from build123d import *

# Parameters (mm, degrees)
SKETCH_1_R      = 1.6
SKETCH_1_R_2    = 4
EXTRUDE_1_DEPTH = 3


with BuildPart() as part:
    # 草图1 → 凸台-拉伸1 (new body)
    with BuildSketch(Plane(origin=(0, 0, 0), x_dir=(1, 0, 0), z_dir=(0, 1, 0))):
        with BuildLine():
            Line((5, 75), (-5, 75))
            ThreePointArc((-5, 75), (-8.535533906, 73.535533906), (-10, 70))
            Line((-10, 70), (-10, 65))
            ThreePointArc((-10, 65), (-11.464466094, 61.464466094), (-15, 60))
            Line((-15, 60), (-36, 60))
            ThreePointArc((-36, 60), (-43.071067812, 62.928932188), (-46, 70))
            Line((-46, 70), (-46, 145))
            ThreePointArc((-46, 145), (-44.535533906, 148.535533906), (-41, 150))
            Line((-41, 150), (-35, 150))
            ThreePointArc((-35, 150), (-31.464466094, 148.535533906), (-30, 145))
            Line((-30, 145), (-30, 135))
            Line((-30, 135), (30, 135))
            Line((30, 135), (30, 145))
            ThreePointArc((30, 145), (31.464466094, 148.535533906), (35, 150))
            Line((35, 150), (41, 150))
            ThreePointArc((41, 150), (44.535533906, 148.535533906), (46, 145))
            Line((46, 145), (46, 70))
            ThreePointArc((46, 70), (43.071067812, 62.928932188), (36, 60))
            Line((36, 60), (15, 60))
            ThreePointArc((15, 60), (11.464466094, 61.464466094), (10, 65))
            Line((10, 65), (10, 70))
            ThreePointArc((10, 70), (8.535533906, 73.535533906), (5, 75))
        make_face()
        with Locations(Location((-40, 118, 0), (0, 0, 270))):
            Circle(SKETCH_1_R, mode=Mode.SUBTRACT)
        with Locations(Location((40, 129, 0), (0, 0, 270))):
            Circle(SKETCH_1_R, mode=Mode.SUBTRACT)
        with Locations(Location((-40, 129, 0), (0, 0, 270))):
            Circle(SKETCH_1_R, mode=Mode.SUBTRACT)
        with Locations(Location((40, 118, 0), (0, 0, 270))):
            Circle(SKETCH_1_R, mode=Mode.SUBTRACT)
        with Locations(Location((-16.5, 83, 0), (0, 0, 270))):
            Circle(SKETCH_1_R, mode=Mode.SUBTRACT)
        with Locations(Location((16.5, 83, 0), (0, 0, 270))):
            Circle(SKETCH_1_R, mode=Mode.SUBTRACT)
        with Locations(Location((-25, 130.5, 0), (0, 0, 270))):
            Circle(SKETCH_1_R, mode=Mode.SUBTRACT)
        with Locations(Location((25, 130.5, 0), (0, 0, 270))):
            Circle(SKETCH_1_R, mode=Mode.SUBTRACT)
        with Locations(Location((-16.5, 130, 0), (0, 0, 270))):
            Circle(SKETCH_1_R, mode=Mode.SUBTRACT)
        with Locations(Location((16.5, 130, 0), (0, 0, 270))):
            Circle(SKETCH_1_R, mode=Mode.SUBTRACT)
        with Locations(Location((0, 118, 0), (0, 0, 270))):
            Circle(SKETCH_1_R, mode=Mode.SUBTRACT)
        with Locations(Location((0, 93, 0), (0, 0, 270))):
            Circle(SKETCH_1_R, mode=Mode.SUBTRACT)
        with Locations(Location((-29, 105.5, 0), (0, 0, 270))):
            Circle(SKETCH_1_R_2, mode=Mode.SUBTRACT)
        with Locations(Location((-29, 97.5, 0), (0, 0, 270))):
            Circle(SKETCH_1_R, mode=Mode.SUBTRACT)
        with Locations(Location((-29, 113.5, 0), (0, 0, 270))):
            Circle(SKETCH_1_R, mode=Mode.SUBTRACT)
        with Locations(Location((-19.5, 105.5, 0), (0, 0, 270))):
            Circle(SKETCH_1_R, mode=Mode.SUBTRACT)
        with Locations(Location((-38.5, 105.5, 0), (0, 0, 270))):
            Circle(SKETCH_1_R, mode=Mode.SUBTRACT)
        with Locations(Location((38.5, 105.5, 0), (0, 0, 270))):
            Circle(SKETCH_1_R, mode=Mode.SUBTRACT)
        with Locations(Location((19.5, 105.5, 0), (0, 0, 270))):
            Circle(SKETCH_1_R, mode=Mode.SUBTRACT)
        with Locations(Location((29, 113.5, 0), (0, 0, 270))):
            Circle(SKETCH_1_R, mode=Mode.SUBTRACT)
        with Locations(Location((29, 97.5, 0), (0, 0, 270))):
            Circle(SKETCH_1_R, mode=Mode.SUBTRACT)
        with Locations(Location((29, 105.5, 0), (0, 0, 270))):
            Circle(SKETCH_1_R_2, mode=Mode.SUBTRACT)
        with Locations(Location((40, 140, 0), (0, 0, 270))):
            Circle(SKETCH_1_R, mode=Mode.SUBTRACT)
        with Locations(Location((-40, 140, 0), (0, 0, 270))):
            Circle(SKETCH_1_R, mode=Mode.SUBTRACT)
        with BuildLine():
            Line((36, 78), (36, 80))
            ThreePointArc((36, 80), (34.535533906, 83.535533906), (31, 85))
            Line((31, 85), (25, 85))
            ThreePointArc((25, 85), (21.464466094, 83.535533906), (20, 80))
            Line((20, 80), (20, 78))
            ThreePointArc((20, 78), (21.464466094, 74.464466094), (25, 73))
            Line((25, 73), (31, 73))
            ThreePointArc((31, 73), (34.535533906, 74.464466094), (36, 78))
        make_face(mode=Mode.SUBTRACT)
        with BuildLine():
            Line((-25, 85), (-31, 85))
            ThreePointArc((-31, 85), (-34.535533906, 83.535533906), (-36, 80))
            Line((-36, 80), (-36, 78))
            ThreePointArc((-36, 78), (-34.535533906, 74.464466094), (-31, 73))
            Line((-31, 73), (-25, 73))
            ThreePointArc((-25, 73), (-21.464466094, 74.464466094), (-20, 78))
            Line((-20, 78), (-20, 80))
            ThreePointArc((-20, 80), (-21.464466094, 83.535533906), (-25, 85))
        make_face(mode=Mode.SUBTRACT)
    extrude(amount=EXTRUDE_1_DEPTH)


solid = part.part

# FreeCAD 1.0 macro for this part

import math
import FreeCAD as App
import Part
import Sketcher
Q = App.Units.Quantity

doc = App.newDocument("Part")
params = doc.addObject("Spreadsheet::Sheet", "Params")
for row, (alias, value) in enumerate([
    ("sketch1_diameter", "8 mm"),
    ("sketch1_radius", "5 mm"),
    ("sketch1_radius2", "10 mm"),
    ("sketch1_diameter2", "3.2 mm"),
    ("sketch1_width", "10 mm"),
    ("pad1_length", "3 mm"),
], start=1):
    params.set(f"A{row}", alias)
    params.set(f"B{row}", "=" + value)
    params.setAlias(f"B{row}", alias)

body = doc.addObject("PartDesign::Body", "Body")

# Sketch on XZ plane
sketch1 = doc.addObject("Sketcher::SketchObject", "Sketch")
body.addObject(sketch1)
sketch1.AttachmentSupport = (doc.XZ_Plane, [""])
sketch1.MapMode = "FlatFace"
sketch1.addGeometry([
    Part.LineSegment(App.Vector(-5, -75, 0), App.Vector(5, -75, 0)),  # 0
    Part.ArcOfCircle(Part.Circle(App.Vector(5, -70, 0), App.Vector(0, 0, 1), 5), math.radians(-90), math.radians(0)),  # 1
    Part.LineSegment(App.Vector(10, -70, 0), App.Vector(10, -65, 0)),  # 2
    Part.ArcOfCircle(Part.Circle(App.Vector(15, -65, 0), App.Vector(0, 0, 1), 5), math.radians(90), math.radians(180)),  # 3
    Part.LineSegment(App.Vector(15, -60, 0), App.Vector(36, -60, 0)),  # 4
    Part.ArcOfCircle(Part.Circle(App.Vector(36, -70, 0), App.Vector(0, 0, 1), 10), math.radians(0), math.radians(90)),  # 5
    Part.LineSegment(App.Vector(46, -70, 0), App.Vector(46, -145, 0)),  # 6
    Part.ArcOfCircle(Part.Circle(App.Vector(41, -145, 0), App.Vector(0, 0, 1), 5), math.radians(-90), math.radians(0)),  # 7
    Part.LineSegment(App.Vector(41, -150, 0), App.Vector(35, -150, 0)),  # 8
    Part.ArcOfCircle(Part.Circle(App.Vector(35, -145, 0), App.Vector(0, 0, 1), 5), math.radians(180), math.radians(270)),  # 9
    Part.LineSegment(App.Vector(30, -145, 0), App.Vector(30, -135, 0)),  # 10
    Part.LineSegment(App.Vector(30, -135, 0), App.Vector(-30, -135, 0)),  # 11
    Part.LineSegment(App.Vector(-30, -135, 0), App.Vector(-30, -145, 0)),  # 12
    Part.ArcOfCircle(Part.Circle(App.Vector(-35, -145, 0), App.Vector(0, 0, 1), 5), math.radians(-90), math.radians(0)),  # 13
    Part.LineSegment(App.Vector(-35, -150, 0), App.Vector(-41, -150, 0)),  # 14
    Part.ArcOfCircle(Part.Circle(App.Vector(-41, -145, 0), App.Vector(0, 0, 1), 5), math.radians(180), math.radians(270)),  # 15
    Part.LineSegment(App.Vector(-46, -145, 0), App.Vector(-46, -70, 0)),  # 16
    Part.ArcOfCircle(Part.Circle(App.Vector(-36, -70, 0), App.Vector(0, 0, 1), 10), math.radians(90), math.radians(180)),  # 17
    Part.LineSegment(App.Vector(-36, -60, 0), App.Vector(-15, -60, 0)),  # 18
    Part.ArcOfCircle(Part.Circle(App.Vector(-15, -65, 0), App.Vector(0, 0, 1), 5), math.radians(0), math.radians(90)),  # 19
    Part.LineSegment(App.Vector(-10, -65, 0), App.Vector(-10, -70, 0)),  # 20
    Part.ArcOfCircle(Part.Circle(App.Vector(-5, -70, 0), App.Vector(0, 0, 1), 5), math.radians(180), math.radians(270)),  # 21
    Part.ArcOfCircle(Part.Circle(App.Vector(31, -78, 0), App.Vector(0, 0, 1), 5), math.radians(0), math.radians(90)),  # 22
    Part.LineSegment(App.Vector(31, -73, 0), App.Vector(25, -73, 0)),  # 23
    Part.ArcOfCircle(Part.Circle(App.Vector(25, -78, 0), App.Vector(0, 0, 1), 5), math.radians(90), math.radians(180)),  # 24
    Part.LineSegment(App.Vector(20, -78, 0), App.Vector(20, -80, 0)),  # 25
    Part.ArcOfCircle(Part.Circle(App.Vector(25, -80, 0), App.Vector(0, 0, 1), 5), math.radians(180), math.radians(270)),  # 26
    Part.LineSegment(App.Vector(25, -85, 0), App.Vector(31, -85, 0)),  # 27
    Part.ArcOfCircle(Part.Circle(App.Vector(31, -80, 0), App.Vector(0, 0, 1), 5), math.radians(-90), math.radians(0)),  # 28
    Part.LineSegment(App.Vector(36, -80, 0), App.Vector(36, -78, 0)),  # 29
    Part.Circle(App.Vector(16.5, -83, 0), App.Vector(0, 0, 1), 1.6),  # 30
    Part.Circle(App.Vector(29, -97.5, 0), App.Vector(0, 0, 1), 1.6),  # 31
    Part.Circle(App.Vector(38.5, -105.5, 0), App.Vector(0, 0, 1), 1.6),  # 32
    Part.Circle(App.Vector(29, -105.5, 0), App.Vector(0, 0, 1), 4),  # 33
    Part.Circle(App.Vector(19.5, -105.5, 0), App.Vector(0, 0, 1), 1.6),  # 34
    Part.Circle(App.Vector(-16.5, -83, 0), App.Vector(0, 0, 1), 1.6),  # 35
    Part.ArcOfCircle(Part.Circle(App.Vector(-25, -80, 0), App.Vector(0, 0, 1), 5), math.radians(-90), math.radians(0)),  # 36
    Part.LineSegment(App.Vector(-20, -80, 0), App.Vector(-20, -78, 0)),  # 37
    Part.ArcOfCircle(Part.Circle(App.Vector(-25, -78, 0), App.Vector(0, 0, 1), 5), math.radians(0), math.radians(90)),  # 38
    Part.LineSegment(App.Vector(-25, -73, 0), App.Vector(-31, -73, 0)),  # 39
    Part.ArcOfCircle(Part.Circle(App.Vector(-31, -78, 0), App.Vector(0, 0, 1), 5), math.radians(90), math.radians(180)),  # 40
    Part.LineSegment(App.Vector(-36, -78, 0), App.Vector(-36, -80, 0)),  # 41
    Part.ArcOfCircle(Part.Circle(App.Vector(-31, -80, 0), App.Vector(0, 0, 1), 5), math.radians(180), math.radians(270)),  # 42
    Part.LineSegment(App.Vector(-31, -85, 0), App.Vector(-25, -85, 0)),  # 43
    Part.Circle(App.Vector(0, -93, 0), App.Vector(0, 0, 1), 1.6),  # 44
    Part.Circle(App.Vector(-19.5, -105.5, 0), App.Vector(0, 0, 1), 1.6),  # 45
    Part.Circle(App.Vector(-29, -97.5, 0), App.Vector(0, 0, 1), 1.6),  # 46
    Part.Circle(App.Vector(-29, -105.5, 0), App.Vector(0, 0, 1), 4),  # 47
    Part.Circle(App.Vector(-38.5, -105.5, 0), App.Vector(0, 0, 1), 1.6),  # 48
    Part.Circle(App.Vector(29, -113.5, 0), App.Vector(0, 0, 1), 1.6),  # 49
    Part.Circle(App.Vector(40, -118, 0), App.Vector(0, 0, 1), 1.6),  # 50
    Part.Circle(App.Vector(40, -129, 0), App.Vector(0, 0, 1), 1.6),  # 51
    Part.Circle(App.Vector(25, -130.5, 0), App.Vector(0, 0, 1), 1.6),  # 52
    Part.Circle(App.Vector(40, -140, 0), App.Vector(0, 0, 1), 1.6),  # 53
    Part.Circle(App.Vector(16.5, -130, 0), App.Vector(0, 0, 1), 1.6),  # 54
    Part.Circle(App.Vector(0, -118, 0), App.Vector(0, 0, 1), 1.6),  # 55
    Part.Circle(App.Vector(-29, -113.5, 0), App.Vector(0, 0, 1), 1.6),  # 56
    Part.Circle(App.Vector(-40, -118, 0), App.Vector(0, 0, 1), 1.6),  # 57
    Part.Circle(App.Vector(-16.5, -130, 0), App.Vector(0, 0, 1), 1.6),  # 58
    Part.Circle(App.Vector(-25, -130.5, 0), App.Vector(0, 0, 1), 1.6),  # 59
    Part.Circle(App.Vector(-40, -129, 0), App.Vector(0, 0, 1), 1.6),  # 60
    Part.Circle(App.Vector(-40, -140, 0), App.Vector(0, 0, 1), 1.6),  # 61
], False)
sketch1.addConstraint([
    Sketcher.Constraint("Tangent", 0, 2, 1, 1),
    Sketcher.Constraint("Tangent", 1, 2, 2, 1),
    Sketcher.Constraint("Tangent", 2, 2, 3, 2),
    Sketcher.Constraint("Tangent", 3, 1, 4, 1),
    Sketcher.Constraint("Tangent", 4, 2, 5, 2),
    Sketcher.Constraint("Tangent", 5, 1, 6, 1),
    Sketcher.Constraint("Tangent", 6, 2, 7, 2),
    Sketcher.Constraint("Tangent", 7, 1, 8, 1),
    Sketcher.Constraint("Tangent", 8, 2, 9, 2),
    Sketcher.Constraint("Tangent", 9, 1, 10, 1),
    Sketcher.Constraint("Coincident", 10, 2, 11, 1),
    Sketcher.Constraint("Coincident", 11, 2, 12, 1),
    Sketcher.Constraint("Tangent", 12, 2, 13, 2),
    Sketcher.Constraint("Tangent", 13, 1, 14, 1),
    Sketcher.Constraint("Tangent", 14, 2, 15, 2),
    Sketcher.Constraint("Tangent", 15, 1, 16, 1),
    Sketcher.Constraint("Tangent", 16, 2, 17, 2),
    Sketcher.Constraint("Tangent", 17, 1, 18, 1),
    Sketcher.Constraint("Tangent", 18, 2, 19, 2),
    Sketcher.Constraint("Tangent", 19, 1, 20, 1),
    Sketcher.Constraint("Tangent", 20, 2, 21, 1),
    Sketcher.Constraint("Tangent", 21, 2, 0, 1),
    Sketcher.Constraint("Tangent", 22, 2, 23, 1),
    Sketcher.Constraint("Tangent", 23, 2, 24, 1),
    Sketcher.Constraint("Tangent", 24, 2, 25, 1),
    Sketcher.Constraint("Tangent", 25, 2, 26, 1),
    Sketcher.Constraint("Tangent", 26, 2, 27, 1),
    Sketcher.Constraint("Tangent", 27, 2, 28, 1),
    Sketcher.Constraint("Tangent", 28, 2, 29, 1),
    Sketcher.Constraint("Tangent", 29, 2, 22, 1),
    Sketcher.Constraint("Tangent", 36, 2, 37, 1),
    Sketcher.Constraint("Tangent", 37, 2, 38, 1),
    Sketcher.Constraint("Tangent", 38, 2, 39, 1),
    Sketcher.Constraint("Tangent", 39, 2, 40, 1),
    Sketcher.Constraint("Tangent", 40, 2, 41, 1),
    Sketcher.Constraint("Tangent", 41, 2, 42, 1),
    Sketcher.Constraint("Tangent", 42, 2, 43, 1),
    Sketcher.Constraint("Tangent", 43, 2, 36, 1),
    Sketcher.Constraint("Horizontal", 0),
    Sketcher.Constraint("Vertical", 2),
    Sketcher.Constraint("Horizontal", 4),
    Sketcher.Constraint("Vertical", 6),
    Sketcher.Constraint("Horizontal", 8),
    Sketcher.Constraint("Vertical", 10),
    Sketcher.Constraint("Horizontal", 11),
    Sketcher.Constraint("Vertical", 12),
    Sketcher.Constraint("Horizontal", 14),
    Sketcher.Constraint("Vertical", 16),
    Sketcher.Constraint("Horizontal", 18),
    Sketcher.Constraint("Vertical", 20),
    Sketcher.Constraint("Horizontal", 23),
    Sketcher.Constraint("Vertical", 25),
    Sketcher.Constraint("Horizontal", 27),
    Sketcher.Constraint("Vertical", 29),
    Sketcher.Constraint("Vertical", 37),
    Sketcher.Constraint("Horizontal", 39),
    Sketcher.Constraint("Vertical", 41),
    Sketcher.Constraint("Horizontal", 43),
    Sketcher.Constraint("Equal", 1, 3),
    Sketcher.Constraint("Equal", 3, 7),
    Sketcher.Constraint("Equal", 7, 9),
    Sketcher.Constraint("Equal", 9, 13),
    Sketcher.Constraint("Equal", 13, 15),
    Sketcher.Constraint("Equal", 5, 17),
    Sketcher.Constraint("Equal", 15, 19),
    Sketcher.Constraint("Equal", 19, 21),
    Sketcher.Constraint("Equal", 21, 22),
    Sketcher.Constraint("Equal", 22, 24),
    Sketcher.Constraint("Equal", 24, 26),
    Sketcher.Constraint("Equal", 26, 28),
    Sketcher.Constraint("Equal", 30, 31),
    Sketcher.Constraint("Equal", 31, 32),
    Sketcher.Constraint("Equal", 32, 34),
    Sketcher.Constraint("Equal", 34, 35),
    Sketcher.Constraint("Equal", 28, 36),
    Sketcher.Constraint("Equal", 36, 38),
    Sketcher.Constraint("Equal", 38, 40),
    Sketcher.Constraint("Equal", 40, 42),
    Sketcher.Constraint("Equal", 35, 44),
    Sketcher.Constraint("Equal", 44, 45),
    Sketcher.Constraint("Equal", 45, 46),
    Sketcher.Constraint("Equal", 33, 47),
    Sketcher.Constraint("Equal", 46, 48),
    Sketcher.Constraint("Equal", 48, 49),
    Sketcher.Constraint("Equal", 49, 50),
    Sketcher.Constraint("Equal", 50, 51),
    Sketcher.Constraint("Equal", 51, 52),
    Sketcher.Constraint("Equal", 52, 53),
    Sketcher.Constraint("Equal", 53, 54),
    Sketcher.Constraint("Equal", 54, 55),
    Sketcher.Constraint("Equal", 55, 56),
    Sketcher.Constraint("Equal", 56, 57),
    Sketcher.Constraint("Equal", 57, 58),
    Sketcher.Constraint("Equal", 58, 59),
    Sketcher.Constraint("Equal", 59, 60),
    Sketcher.Constraint("Equal", 60, 61),
    Sketcher.Constraint("Symmetric", 9, 3, 13, 3, -2),
    Sketcher.Constraint("Symmetric", 5, 3, 17, 3, -2),
    Sketcher.Constraint("Symmetric", 30, 3, 35, 3, -2),
    Sketcher.Constraint("Symmetric", 26, 3, 36, 3, -2),
    Sketcher.Constraint("Symmetric", 22, 3, 40, 3, -2),
    Sketcher.Constraint("Symmetric", 34, 3, 45, 3, -2),
    Sketcher.Constraint("Symmetric", 31, 3, 46, 3, -2),
    Sketcher.Constraint("Symmetric", 33, 3, 47, 3, -2),
    Sketcher.Constraint("Symmetric", 32, 3, 48, 3, -2),
    Sketcher.Constraint("Symmetric", 49, 3, 56, 3, -2),
    Sketcher.Constraint("Symmetric", 50, 3, 57, 3, -2),
    Sketcher.Constraint("Symmetric", 54, 3, 58, 3, -2),
    Sketcher.Constraint("Symmetric", 52, 3, 59, 3, -2),
    Sketcher.Constraint("Symmetric", 51, 3, 60, 3, -2),
    Sketcher.Constraint("Symmetric", 53, 3, 61, 3, -2),
    Sketcher.Constraint("PointOnObject", 44, 3, -2),
    Sketcher.Constraint("PointOnObject", 55, 3, -2),
    Sketcher.Constraint("Horizontal", 1, 3, 5, 3),
    Sketcher.Constraint("Horizontal", 32, 3, 33, 3),
    Sketcher.Constraint("Horizontal", 33, 3, 34, 3),
    Sketcher.Constraint("Horizontal", 50, 3, 55, 3),
    Sketcher.Constraint("Vertical", 31, 3, 33, 3),
    Sketcher.Constraint("Vertical", 33, 3, 49, 3),
    Sketcher.Constraint("Vertical", 50, 3, 51, 3),
    Sketcher.Constraint("Vertical", 26, 3, 52, 3),
    Sketcher.Constraint("Vertical", 51, 3, 53, 3),
    Sketcher.Constraint("Vertical", 30, 3, 54, 3),
    Sketcher.Constraint("Vertical", 4, 2, 28, 2),
    Sketcher.Constraint("Equal", 4, 18),
    Sketcher.Constraint("Equal", 14, 23),
    Sketcher.Constraint("Equal", 0, 10),
    Sketcher.Constraint("Diameter", 33, Q("8 mm")),
    Sketcher.Constraint("Radius", 1, Q("5 mm")),
    Sketcher.Constraint("Radius", 5, Q("10 mm")),
    Sketcher.Constraint("Diameter", 30, Q("3.2 mm")),
    Sketcher.Constraint("DistanceX", 0, 1, 0, 2, Q("10 mm")),
    Sketcher.Constraint("DistanceX", 4, 1, 4, 2, Q("21 mm")),
    Sketcher.Constraint("DistanceX", 8, 2, 8, 1, Q("6 mm")),
    Sketcher.Constraint("DistanceY", 6, 2, 6, 1, Q("75 mm")),
    Sketcher.Constraint("DistanceY", 25, 2, 25, 1, Q("2 mm")),
    Sketcher.Constraint("DistanceY", 1, 3, -1, 1, Q("70 mm")),
    Sketcher.Constraint("DistanceY", 22, 3, -1, 1, Q("78 mm")),
    Sketcher.Constraint("DistanceY", 30, 3, -1, 1, Q("83 mm")),
    Sketcher.Constraint("DistanceX", -1, 1, 31, 3, Q("29 mm")),
    Sketcher.Constraint("DistanceY", 44, 3, -1, 1, Q("93 mm")),
    Sketcher.Constraint("DistanceX", -1, 1, 50, 3, Q("40 mm")),
    Sketcher.Constraint("DistanceY", 50, 3, -1, 1, Q("118 mm")),
    Sketcher.Constraint("DistanceY", 51, 3, -1, 1, Q("129 mm")),
    Sketcher.Constraint("DistanceY", 53, 3, -1, 1, Q("140 mm")),
    Sketcher.Constraint("DistanceY", 54, 3, -1, 1, Q("130 mm")),
    Sketcher.Constraint("DistanceX", -1, 1, 30, 3, Q("16.5 mm")),
    Sketcher.Constraint("DistanceY", 31, 3, -1, 1, Q("97.5 mm")),
    Sketcher.Constraint("DistanceX", -1, 1, 32, 3, Q("38.5 mm")),
    Sketcher.Constraint("DistanceY", 32, 3, -1, 1, Q("105.5 mm")),
    Sketcher.Constraint("DistanceX", -1, 1, 34, 3, Q("19.5 mm")),
    Sketcher.Constraint("DistanceY", 49, 3, -1, 1, Q("113.5 mm")),
    Sketcher.Constraint("DistanceY", 52, 3, -1, 1, Q("130.5 mm")),
])
sketch1.setExpression("Constraints[127]", "Params.sketch1_diameter")
sketch1.setExpression("Constraints[128]", "Params.sketch1_radius")
sketch1.setExpression("Constraints[129]", "Params.sketch1_radius2")
sketch1.setExpression("Constraints[130]", "Params.sketch1_diameter2")
sketch1.setExpression("Constraints[131]", "Params.sketch1_width")
pad1 = doc.addObject("PartDesign::Pad", "Pad")
body.addObject(pad1)
pad1.Profile = sketch1
pad1.setExpression("Length", "Params.pad1_length")
pad1.Reversed = True

doc.recompute()
